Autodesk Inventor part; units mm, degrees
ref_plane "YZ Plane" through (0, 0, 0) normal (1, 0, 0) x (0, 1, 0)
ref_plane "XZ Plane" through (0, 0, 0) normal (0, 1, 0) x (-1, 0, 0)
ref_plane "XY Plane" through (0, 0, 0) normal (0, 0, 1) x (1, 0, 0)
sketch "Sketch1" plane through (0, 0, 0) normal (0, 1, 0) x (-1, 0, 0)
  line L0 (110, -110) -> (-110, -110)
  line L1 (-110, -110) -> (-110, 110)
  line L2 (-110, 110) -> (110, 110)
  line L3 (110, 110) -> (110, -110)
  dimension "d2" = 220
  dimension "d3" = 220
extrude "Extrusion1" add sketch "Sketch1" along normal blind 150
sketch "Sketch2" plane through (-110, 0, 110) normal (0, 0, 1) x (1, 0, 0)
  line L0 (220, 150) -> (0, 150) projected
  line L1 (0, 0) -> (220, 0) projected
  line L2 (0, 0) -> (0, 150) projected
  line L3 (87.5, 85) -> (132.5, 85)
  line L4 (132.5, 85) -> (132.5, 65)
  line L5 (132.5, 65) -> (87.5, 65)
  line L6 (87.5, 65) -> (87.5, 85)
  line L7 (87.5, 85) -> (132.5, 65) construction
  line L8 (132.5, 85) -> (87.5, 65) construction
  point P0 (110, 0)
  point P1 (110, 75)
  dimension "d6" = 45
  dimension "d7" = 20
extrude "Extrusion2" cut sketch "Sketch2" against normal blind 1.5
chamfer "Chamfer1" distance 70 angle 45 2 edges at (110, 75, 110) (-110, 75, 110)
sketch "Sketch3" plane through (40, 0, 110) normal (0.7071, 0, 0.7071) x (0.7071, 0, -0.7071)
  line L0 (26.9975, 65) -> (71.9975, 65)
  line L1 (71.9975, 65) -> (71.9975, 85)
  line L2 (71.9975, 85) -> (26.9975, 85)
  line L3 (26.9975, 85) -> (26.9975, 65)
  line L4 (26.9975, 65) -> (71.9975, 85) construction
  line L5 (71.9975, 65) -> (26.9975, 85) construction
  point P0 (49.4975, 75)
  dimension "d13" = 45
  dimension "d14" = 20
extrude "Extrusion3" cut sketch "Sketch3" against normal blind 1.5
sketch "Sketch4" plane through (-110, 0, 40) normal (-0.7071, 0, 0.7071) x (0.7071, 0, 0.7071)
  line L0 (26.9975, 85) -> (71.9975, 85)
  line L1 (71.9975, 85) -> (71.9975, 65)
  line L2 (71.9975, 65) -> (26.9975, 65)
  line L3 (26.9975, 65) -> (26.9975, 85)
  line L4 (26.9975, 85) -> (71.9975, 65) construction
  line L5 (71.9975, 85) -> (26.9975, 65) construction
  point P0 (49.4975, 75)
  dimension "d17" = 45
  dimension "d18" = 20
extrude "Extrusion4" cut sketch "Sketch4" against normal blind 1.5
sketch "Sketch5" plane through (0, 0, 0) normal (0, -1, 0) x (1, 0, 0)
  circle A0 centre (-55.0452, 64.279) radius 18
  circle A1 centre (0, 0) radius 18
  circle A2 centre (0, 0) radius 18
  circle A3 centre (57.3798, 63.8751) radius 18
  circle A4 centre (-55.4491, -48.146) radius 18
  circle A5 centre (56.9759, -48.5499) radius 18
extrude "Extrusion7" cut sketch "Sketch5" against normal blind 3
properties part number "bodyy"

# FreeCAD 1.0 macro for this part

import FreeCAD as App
import Part
import Sketcher

V = App.Vector


def edges_at(feature, points):
    """Names of the edges that pass closest to the given points."""
    edges = feature.Shape.Edges
    near = lambda p: min(range(len(edges)), key=lambda i: edges[i].distToShape(Part.Vertex(*p))[0])
    return sorted({f"Edge{near(p) + 1}" for p in points})


def add_polygon(sketch, points):
    """Adds a closed chain of lines whose ends are joined by coincident constraints."""
    first, n = sketch.GeometryCount, len(points)
    for a, b in zip(points, points[1:] + points[:1]):
        sketch.addGeometry(Part.LineSegment(App.Vector(*a, 0), App.Vector(*b, 0)), False)
    for i in range(n):
        sketch.addConstraint(Sketcher.Constraint("Coincident", first + i, 2, first + (i + 1) % n, 1))

doc = App.newDocument("Part")
body = doc.addObject("PartDesign::Body", "Body")

# Sketch on XZ plane
sketch1 = body.newObject("Sketcher::SketchObject", "Sketch")
sketch1.AttachmentSupport = (doc.getObject("XZ_Plane"), [""])
sketch1.MapMode = "FlatFace"
add_polygon(sketch1, [(110, -110), (-110, -110), (-110, 110), (110, 110)])  # lines 0-3
sketch1.addConstraint(Sketcher.Constraint("Horizontal", 0))
sketch1.addConstraint(Sketcher.Constraint("Vertical", 1))
sketch1.addConstraint(Sketcher.Constraint("Horizontal", 2))
sketch1.addConstraint(Sketcher.Constraint("Vertical", 3))
sketch1.addConstraint(Sketcher.Constraint("Symmetric", 0, 2, 2, 2, -1, 1))
sketch1.addConstraint(Sketcher.Constraint("Equal", 2, 1))
sketch1.addConstraint(Sketcher.Constraint("DistanceX", 0, 2, 0, 1, 220.0))
pad1 = body.newObject("PartDesign::Pad", "Pad")
pad1.Profile = sketch1
pad1.Length = 150
pad1.Reversed = True

# Sketch on XY plane
sketch2 = body.newObject("Sketcher::SketchObject", "Sketch001")
sketch2.AttachmentSupport = (doc.getObject("XY_Plane"), [""])
sketch2.MapMode = "FlatFace"
sketch2.AttachmentOffset = App.Placement(V(0, 0, 110), App.Rotation())
add_polygon(sketch2, [(22.5, 85), (-22.5, 85), (-22.5, 65), (22.5, 65)])  # lines 0-3
sketch2.addConstraint(Sketcher.Constraint("Horizontal", 0))
sketch2.addConstraint(Sketcher.Constraint("Vertical", 1))
sketch2.addConstraint(Sketcher.Constraint("Horizontal", 2))
sketch2.addConstraint(Sketcher.Constraint("Vertical", 3))
sketch2.addConstraint(Sketcher.Constraint("DistanceX", 0, 2, 0, 1, 45.0))
sketch2.addConstraint(Sketcher.Constraint("DistanceY", 1, 2, 1, 1, 20.0))
sketch2.addConstraint(Sketcher.Constraint("DistanceY", -1, 1, 0, 2, 85.0))
sketch2.addConstraint(Sketcher.Constraint("DistanceX", 0, 2, -1, 1, 22.5))
pocket1 = body.newObject("PartDesign::Pocket", "Pocket")
pocket1.Profile = sketch2
pocket1.Length = 1.5
doc.recompute()

chamfer = body.newObject("PartDesign::Chamfer", "Chamfer")
chamfer.Base = (pocket1, edges_at(pocket1, [(110, 75, 110), (-110, 75, 110)]))
chamfer.Size = 70

# Sketch on an angled plane
sketch3 = body.newObject("Sketcher::SketchObject", "Sketch002")
sketch3.Placement = App.Placement(V(40, 0, 110), App.Rotation(V(0.707106781, 0, -0.707106781), V(0, 0.999999999, 0), V(0.707106781, 0, 0.707106781), "ZXY"))
add_polygon(sketch3, [(26.9975, 85), (26.9975, 65), (71.9975, 65), (71.9975, 85)])  # lines 0-3
sketch3.addConstraint(Sketcher.Constraint("Vertical", 0))
sketch3.addConstraint(Sketcher.Constraint("Horizontal", 1))
sketch3.addConstraint(Sketcher.Constraint("Vertical", 2))
sketch3.addConstraint(Sketcher.Constraint("Horizontal", 3))
sketch3.addConstraint(Sketcher.Constraint("DistanceX", 1, 1, 1, 2, 45.0))
sketch3.addConstraint(Sketcher.Constraint("DistanceY", 0, 2, 0, 1, 20.0))
sketch3.addConstraint(Sketcher.Constraint("DistanceY", -1, 1, 0, 2, 65.0))
sketch3.addConstraint(Sketcher.Constraint("DistanceX", -1, 1, 0, 2, 26.9975))
pocket2 = body.newObject("PartDesign::Pocket", "Pocket001")
pocket2.Profile = sketch3
pocket2.Length = 1.5

# Sketch on an angled plane
sketch4 = body.newObject("Sketcher::SketchObject", "Sketch003")
sketch4.Placement = App.Placement(V(-110, 0, 40), App.Rotation(V(0.707106781, 0, 0.707106781), V(0, 0.999999999, 0), V(-0.707106781, 0, 0.707106781), "ZXY"))
add_polygon(sketch4, [(71.9975, 85), (26.9975, 85), (26.9975, 65), (71.9975, 65)])  # lines 0-3
sketch4.addConstraint(Sketcher.Constraint("Horizontal", 0))
sketch4.addConstraint(Sketcher.Constraint("Vertical", 1))
sketch4.addConstraint(Sketcher.Constraint("Horizontal", 2))
sketch4.addConstraint(Sketcher.Constraint("Vertical", 3))
sketch4.addConstraint(Sketcher.Constraint("DistanceX", 0, 2, 0, 1, 45.0))
sketch4.addConstraint(Sketcher.Constraint("DistanceY", 1, 2, 1, 1, 20.0))
sketch4.addConstraint(Sketcher.Constraint("DistanceY", -1, 1, 0, 2, 85.0))
sketch4.addConstraint(Sketcher.Constraint("DistanceX", -1, 1, 0, 2, 26.9975))
pocket3 = body.newObject("PartDesign::Pocket", "Pocket002")
pocket3.Profile = sketch4
pocket3.Length = 1.5

# Sketch on XZ plane
sketch5 = body.newObject("Sketcher::SketchObject", "Sketch004")
sketch5.AttachmentSupport = (doc.getObject("XZ_Plane"), [""])
sketch5.MapMode = "FlatFace"
sketch5.addGeometry(Part.Circle(V(-55.0452, 64.279, 0), V(0, 0, 1), 18), False)
sketch5.addGeometry(Part.Circle(V(0, 0, 0), V(0, 0, 1), 18), False)
sketch5.addGeometry(Part.Circle(V(57.3798, 63.8751, 0), V(0, 0, 1), 18), False)
sketch5.addGeometry(Part.Circle(V(-55.4491, -48.146, 0), V(0, 0, 1), 18), False)
sketch5.addGeometry(Part.Circle(V(56.9759, -48.5499, 0), V(0, 0, 1), 18), False)
sketch5.addConstraint(Sketcher.Constraint("Coincident", 1, 3, -1, 1))
sketch5.addConstraint(Sketcher.Constraint("Equal", 0, 1))
sketch5.addConstraint(Sketcher.Constraint("Equal", 1, 2))
sketch5.addConstraint(Sketcher.Constraint("Equal", 2, 3))
sketch5.addConstraint(Sketcher.Constraint("Equal", 3, 4))
sketch5.addConstraint(Sketcher.Constraint("Diameter", 0, 36.0))
sketch5.addConstraint(Sketcher.Constraint("DistanceY", 4, 3, -1, 1, 48.55))
sketch5.addConstraint(Sketcher.Constraint("DistanceY", -1, 1, 0, 3, 64.279))
sketch5.addConstraint(Sketcher.Constraint("DistanceY", -1, 1, 2, 3, 63.875))
sketch5.addConstraint(Sketcher.Constraint("DistanceX", 3, 3, -1, 1, 55.449))
sketch5.addConstraint(Sketcher.Constraint("DistanceY", 3, 3, -1, 1, 48.146))
sketch5.addConstraint(Sketcher.Constraint("DistanceX", -1, 1, 4, 3, 56.976))
sketch5.addConstraint(Sketcher.Constraint("DistanceX", 0, 3, 2, 3, 112.425))
sketch5.addConstraint(Sketcher.Constraint("DistanceX", 3, 3, 0, 3, 0.404))
pocket4 = body.newObject("PartDesign::Pocket", "Pocket003")
pocket4.Profile = sketch5
pocket4.Length = 3

doc.recompute()
